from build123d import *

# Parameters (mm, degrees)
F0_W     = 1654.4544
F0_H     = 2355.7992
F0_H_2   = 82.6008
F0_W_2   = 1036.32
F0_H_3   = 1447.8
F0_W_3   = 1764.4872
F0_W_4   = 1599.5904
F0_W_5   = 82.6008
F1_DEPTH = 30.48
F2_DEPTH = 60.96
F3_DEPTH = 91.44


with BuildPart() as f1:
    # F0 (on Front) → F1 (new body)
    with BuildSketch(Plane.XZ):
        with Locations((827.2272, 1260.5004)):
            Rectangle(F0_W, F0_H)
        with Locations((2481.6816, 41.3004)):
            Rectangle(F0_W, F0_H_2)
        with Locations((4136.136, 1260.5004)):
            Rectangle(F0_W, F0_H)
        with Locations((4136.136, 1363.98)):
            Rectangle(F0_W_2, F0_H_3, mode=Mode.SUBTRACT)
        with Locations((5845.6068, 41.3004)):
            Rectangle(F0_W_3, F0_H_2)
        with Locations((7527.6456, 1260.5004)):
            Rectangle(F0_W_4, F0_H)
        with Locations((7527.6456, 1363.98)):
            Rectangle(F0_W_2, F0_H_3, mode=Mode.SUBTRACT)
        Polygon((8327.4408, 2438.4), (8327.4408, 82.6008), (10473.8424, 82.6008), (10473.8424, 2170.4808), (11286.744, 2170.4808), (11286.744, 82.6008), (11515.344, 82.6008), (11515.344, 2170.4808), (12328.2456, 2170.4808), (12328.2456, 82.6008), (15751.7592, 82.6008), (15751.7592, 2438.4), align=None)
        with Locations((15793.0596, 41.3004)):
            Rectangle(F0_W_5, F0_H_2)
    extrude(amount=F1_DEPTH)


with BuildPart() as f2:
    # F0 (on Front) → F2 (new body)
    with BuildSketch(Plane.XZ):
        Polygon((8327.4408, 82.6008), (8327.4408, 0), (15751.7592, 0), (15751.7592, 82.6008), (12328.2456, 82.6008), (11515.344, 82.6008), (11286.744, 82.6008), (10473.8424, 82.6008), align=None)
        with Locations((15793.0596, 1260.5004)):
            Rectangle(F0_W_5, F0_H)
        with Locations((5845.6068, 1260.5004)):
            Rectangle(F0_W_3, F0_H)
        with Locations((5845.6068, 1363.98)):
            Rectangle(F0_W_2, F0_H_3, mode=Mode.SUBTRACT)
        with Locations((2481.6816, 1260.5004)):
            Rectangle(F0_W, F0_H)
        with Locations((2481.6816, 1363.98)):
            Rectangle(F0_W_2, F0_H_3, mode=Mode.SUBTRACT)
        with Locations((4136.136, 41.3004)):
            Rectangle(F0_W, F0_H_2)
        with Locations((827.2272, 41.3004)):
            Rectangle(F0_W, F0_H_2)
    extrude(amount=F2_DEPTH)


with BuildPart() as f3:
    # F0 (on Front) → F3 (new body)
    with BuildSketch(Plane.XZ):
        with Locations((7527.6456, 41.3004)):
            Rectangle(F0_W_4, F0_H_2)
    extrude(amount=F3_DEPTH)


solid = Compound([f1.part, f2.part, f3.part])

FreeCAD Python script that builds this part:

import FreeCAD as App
import Part
import Sketcher

V = App.Vector
Q = App.Units.Quantity

doc = App.newDocument("Part")
body = doc.addObject("PartDesign::Body", "Body")
body.AllowCompound = True

sketch1 = body.newObject("Sketcher::SketchObject", "Sketch")
sketch1.AttachmentSupport = (doc.getObject("XZ_Plane"), [""])
sketch1.MapMode = "FlatFace"
sketch1.addGeometry(Part.LineSegment(V(0, 2438, 0), V(0, 83, 0)), False)
sketch1.addGeometry(Part.LineSegment(V(0, 83, 0), V(1654, 83, 0)), False)
sketch1.addGeometry(Part.LineSegment(V(1654, 83, 0), V(1654, 2438, 0)), False)
sketch1.addGeometry(Part.LineSegment(V(1654, 2438, 0), V(0, 2438, 0)), False)
sketch1.addGeometry(Part.LineSegment(V(1654, 83, 0), V(1654, 0, 0)), False)
sketch1.addGeometry(Part.LineSegment(V(1654, 0, 0), V(3309, 0, 0)), False)
sketch1.addGeometry(Part.LineSegment(V(3309, 0, 0), V(3309, 83, 0)), False)
sketch1.addGeometry(Part.LineSegment(V(3309, 83, 0), V(1654, 83, 0)), False)
sketch1.addGeometry(Part.LineSegment(V(3309, 2438, 0), V(3309, 83, 0)), False)
sketch1.addGeometry(Part.LineSegment(V(3309, 83, 0), V(4963, 83, 0)), False)
sketch1.addGeometry(Part.LineSegment(V(4963, 83, 0), V(4963, 2438, 0)), False)
sketch1.addGeometry(Part.LineSegment(V(4963, 2438, 0), V(3309, 2438, 0)), False)
sketch1.addGeometry(Part.LineSegment(V(4654, 640, 0), V(3618, 640, 0)), False)
sketch1.addGeometry(Part.LineSegment(V(3618, 640, 0), V(3618, 2088, 0)), False)
sketch1.addGeometry(Part.LineSegment(V(3618, 2088, 0), V(4654, 2088, 0)), False)
sketch1.addGeometry(Part.LineSegment(V(4654, 2088, 0), V(4654, 640, 0)), False)
sketch1.addGeometry(Part.LineSegment(V(4963, 83, 0), V(4963, 0, 0)), False)
sketch1.addGeometry(Part.LineSegment(V(4963, 0, 0), V(6728, 0, 0)), False)
sketch1.addGeometry(Part.LineSegment(V(6728, 0, 0), V(6728, 83, 0)), False)
sketch1.addGeometry(Part.LineSegment(V(6728, 83, 0), V(4963, 83, 0)), False)
sketch1.addGeometry(Part.LineSegment(V(6728, 2438, 0), V(6728, 83, 0)), False)
sketch1.addGeometry(Part.LineSegment(V(6728, 83, 0), V(10474, 83, 0)), False)
sketch1.addGeometry(Part.LineSegment(V(10474, 83, 0), V(10474, 2170, 0)), False)
sketch1.addGeometry(Part.LineSegment(V(10474, 2170, 0), V(11287, 2170, 0)), False)
sketch1.addGeometry(Part.LineSegment(V(11287, 2170, 0), V(11287, 83, 0)), False)
sketch1.addGeometry(Part.LineSegment(V(11287, 83, 0), V(11515, 83, 0)), False)
sketch1.addGeometry(Part.LineSegment(V(11515, 83, 0), V(11515, 2170, 0)), False)
sketch1.addGeometry(Part.LineSegment(V(11515, 2170, 0), V(12328, 2170, 0)), False)
sketch1.addGeometry(Part.LineSegment(V(12328, 2170, 0), V(12328, 83, 0)), False)
sketch1.addGeometry(Part.LineSegment(V(12328, 83, 0), V(15752, 83, 0)), False)
sketch1.addGeometry(Part.LineSegment(V(15752, 83, 0), V(15752, 2438, 0)), False)
sketch1.addGeometry(Part.LineSegment(V(15752, 2438, 0), V(6728, 2438, 0)), False)
sketch1.addGeometry(Part.LineSegment(V(8046, 640, 0), V(7009, 640, 0)), False)
sketch1.addGeometry(Part.LineSegment(V(7009, 640, 0), V(7009, 2088, 0)), False)
sketch1.addGeometry(Part.LineSegment(V(7009, 2088, 0), V(8046, 2088, 0)), False)
sketch1.addGeometry(Part.LineSegment(V(8046, 2088, 0), V(8046, 640, 0)), False)
sketch1.addGeometry(Part.LineSegment(V(15752, 83, 0), V(15752, 0, 0)), False)
sketch1.addGeometry(Part.LineSegment(V(15752, 0, 0), V(15834, 0, 0)), False)
sketch1.addGeometry(Part.LineSegment(V(15834, 0, 0), V(15834, 83, 0)), False)
sketch1.addGeometry(Part.LineSegment(V(15834, 83, 0), V(15752, 83, 0)), False)
sketch1.addConstraint(Sketcher.Constraint("Coincident", 0, 2, 1, 1))
sketch1.addConstraint(Sketcher.Constraint("Coincident", 1, 2, 2, 1))
sketch1.addConstraint(Sketcher.Constraint("Coincident", 2, 2, 3, 1))
sketch1.addConstraint(Sketcher.Constraint("Coincident", 3, 2, 0, 1))
sketch1.addConstraint(Sketcher.Constraint("Coincident", 4, 2, 5, 1))
sketch1.addConstraint(Sketcher.Constraint("Coincident", 5, 2, 6, 1))
sketch1.addConstraint(Sketcher.Constraint("Coincident", 6, 2, 7, 1))
sketch1.addConstraint(Sketcher.Constraint("Coincident", 7, 2, 4, 1))
sketch1.addConstraint(Sketcher.Constraint("Coincident", 8, 2, 9, 1))
sketch1.addConstraint(Sketcher.Constraint("Coincident", 9, 2, 10, 1))
sketch1.addConstraint(Sketcher.Constraint("Coincident", 10, 2, 11, 1))
sketch1.addConstraint(Sketcher.Constraint("Coincident", 11, 2, 8, 1))
sketch1.addConstraint(Sketcher.Constraint("Coincident", 12, 2, 13, 1))
sketch1.addConstraint(Sketcher.Constraint("Coincident", 13, 2, 14, 1))
sketch1.addConstraint(Sketcher.Constraint("Coincident", 14, 2, 15, 1))
sketch1.addConstraint(Sketcher.Constraint("Coincident", 15, 2, 12, 1))
sketch1.addConstraint(Sketcher.Constraint("Coincident", 16, 2, 17, 1))
sketch1.addConstraint(Sketcher.Constraint("Coincident", 17, 2, 18, 1))
sketch1.addConstraint(Sketcher.Constraint("Coincident", 18, 2, 19, 1))
sketch1.addConstraint(Sketcher.Constraint("Coincident", 19, 2, 16, 1))
sketch1.addConstraint(Sketcher.Constraint("Coincident", 20, 2, 21, 1))
sketch1.addConstraint(Sketcher.Constraint("Coincident", 21, 2, 22, 1))
sketch1.addConstraint(Sketcher.Constraint("Coincident", 22, 2, 23, 1))
sketch1.addConstraint(Sketcher.Constraint("Coincident", 23, 2, 24, 1))
sketch1.addConstraint(Sketcher.Constraint("Coincident", 24, 2, 25, 1))
sketch1.addConstraint(Sketcher.Constraint("Coincident", 25, 2, 26, 1))
sketch1.addConstraint(Sketcher.Constraint("Coincident", 26, 2, 27, 1))
sketch1.addConstraint(Sketcher.Constraint("Coincident", 27, 2, 28, 1))
sketch1.addConstraint(Sketcher.Constraint("Coincident", 28, 2, 29, 1))
sketch1.addConstraint(Sketcher.Constraint("Coincident", 29, 2, 30, 1))
sketch1.addConstraint(Sketcher.Constraint("Coincident", 30, 2, 31, 1))
sketch1.addConstraint(Sketcher.Constraint("Coincident", 31, 2, 20, 1))
sketch1.addConstraint(Sketcher.Constraint("Coincident", 32, 2, 33, 1))
sketch1.addConstraint(Sketcher.Constraint("Coincident", 33, 2, 34, 1))
sketch1.addConstraint(Sketcher.Constraint("Coincident", 34, 2, 35, 1))
sketch1.addConstraint(Sketcher.Constraint("Coincident", 35, 2, 32, 1))
sketch1.addConstraint(Sketcher.Constraint("Coincident", 36, 2, 37, 1))
sketch1.addConstraint(Sketcher.Constraint("Coincident", 37, 2, 38, 1))
sketch1.addConstraint(Sketcher.Constraint("Coincident", 38, 2, 39, 1))
sketch1.addConstraint(Sketcher.Constraint("Coincident", 39, 2, 36, 1))
sketch1.addConstraint(Sketcher.Constraint("Vertical", 0))
sketch1.addConstraint(Sketcher.Constraint("Horizontal", 1))
sketch1.addConstraint(Sketcher.Constraint("Vertical", 2))
sketch1.addConstraint(Sketcher.Constraint("Horizontal", 3))
sketch1.addConstraint(Sketcher.Constraint("Vertical", 4))
sketch1.addConstraint(Sketcher.Constraint("Horizontal", 5))
sketch1.addConstraint(Sketcher.Constraint("Vertical", 6))
sketch1.addConstraint(Sketcher.Constraint("Horizontal", 7))
sketch1.addConstraint(Sketcher.Constraint("Vertical", 8))
sketch1.addConstraint(Sketcher.Constraint("Horizontal", 9))
sketch1.addConstraint(Sketcher.Constraint("Vertical", 10))
sketch1.addConstraint(Sketcher.Constraint("Horizontal", 11))
sketch1.addConstraint(Sketcher.Constraint("Horizontal", 12))
sketch1.addConstraint(Sketcher.Constraint("Vertical", 13))
sketch1.addConstraint(Sketcher.Constraint("Horizontal", 14))
sketch1.addConstraint(Sketcher.Constraint("Vertical", 15))
sketch1.addConstraint(Sketcher.Constraint("Vertical", 16))
sketch1.addConstraint(Sketcher.Constraint("Horizontal", 17))
sketch1.addConstraint(Sketcher.Constraint("Vertical", 18))
sketch1.addConstraint(Sketcher.Constraint("Horizontal", 19))
sketch1.addConstraint(Sketcher.Constraint("Vertical", 20))
sketch1.addConstraint(Sketcher.Constraint("Horizontal", 21))
sketch1.addConstraint(Sketcher.Constraint("Vertical", 22))
sketch1.addConstraint(Sketcher.Constraint("Horizontal", 23))
sketch1.addConstraint(Sketcher.Constraint("Vertical", 24))
sketch1.addConstraint(Sketcher.Constraint("Horizontal", 25))
sketch1.addConstraint(Sketcher.Constraint("Vertical", 26))
sketch1.addConstraint(Sketcher.Constraint("Horizontal", 27))
sketch1.addConstraint(Sketcher.Constraint("Vertical", 28))
sketch1.addConstraint(Sketcher.Constraint("Horizontal", 29))
sketch1.addConstraint(Sketcher.Constraint("Vertical", 30))
sketch1.addConstraint(Sketcher.Constraint("Horizontal", 31))
sketch1.addConstraint(Sketcher.Constraint("Horizontal", 32))
sketch1.addConstraint(Sketcher.Constraint("Vertical", 33))
sketch1.addConstraint(Sketcher.Constraint("Horizontal", 34))
sketch1.addConstraint(Sketcher.Constraint("Vertical", 35))
sketch1.addConstraint(Sketcher.Constraint("Vertical", 36))
sketch1.addConstraint(Sketcher.Constraint("Horizontal", 37))
sketch1.addConstraint(Sketcher.Constraint("Vertical", 38))
sketch1.addConstraint(Sketcher.Constraint("Horizontal", 39))
sketch1.addConstraint(Sketcher.Constraint("Coincident", 7, 2, 1, 2))
sketch1.addConstraint(Sketcher.Constraint("Coincident", 8, 2, 6, 2))
sketch1.addConstraint(Sketcher.Constraint("Coincident", 19, 2, 9, 2))
sketch1.addConstraint(Sketcher.Constraint("Coincident", 20, 2, 18, 2))
sketch1.addConstraint(Sketcher.Constraint("Coincident", 39, 2, 29, 2))
sketch1.addConstraint(Sketcher.Constraint("PointOnObject", 0, 2, -2))
sketch1.addConstraint(Sketcher.Constraint("PointOnObject", 4, 2, -1))
sketch1.addConstraint(Sketcher.Constraint("PointOnObject", 16, 2, -1))
sketch1.addConstraint(Sketcher.Constraint("PointOnObject", 36, 2, -1))
sketch1.addConstraint(Sketcher.Constraint("Horizontal", 3, 2, 10, 2))
sketch1.addConstraint(Sketcher.Constraint("Horizontal", 21, 2, 24, 2))
sketch1.addConstraint(Sketcher.Constraint("Horizontal", 23, 2, 26, 2))
sketch1.addConstraint(Sketcher.Constraint("Horizontal", 25, 2, 28, 2))
sketch1.addConstraint(Sketcher.Constraint("Horizontal", 11, 2, 30, 2))
sketch1.addConstraint(Sketcher.Constraint("Horizontal", 15, 2, 32, 2))
sketch1.addConstraint(Sketcher.Constraint("Horizontal", 14, 2, 33, 2))
sketch1.addConstraint(Sketcher.Constraint("Equal", 3, 5))
sketch1.addConstraint(Sketcher.Constraint("Equal", 7, 9))
sketch1.addConstraint(Sketcher.Constraint("Equal", 23, 27))
sketch1.addConstraint(Sketcher.Constraint("Equal", 14, 32))
sketch1.addConstraint(Sketcher.Constraint("Equal", 39, 4))
sketch1.addConstraint(Sketcher.Constraint("DistanceX", 25, 1, 25, 2, Q("9 in")))
sketch1.addConstraint(Sketcher.Constraint("DistanceY", 13, 1, 13, 2, Q("57 in")))
sketch1.addConstraint(Sketcher.Constraint("DistanceX", 12, 2, 12, 1, Q("40.8 in")))
sketch1.addConstraint(Sketcher.Constraint("DistanceY", 22, 1, 22, 2, Q("82.2 in")))
sketch1.addConstraint(Sketcher.Constraint("DistanceY", -1, 1, 2, 2, Q("96 in")))
sketch1.addConstraint(Sketcher.Constraint("DistanceX", 21, 1, 21, 2, Q("147.48 in")))
sketch1.addConstraint(Sketcher.Constraint("DistanceY", -1, 1, 12, 2, Q("25.2 in")))
sketch1.addConstraint(Sketcher.Constraint("DistanceX", -1, 1, 37, 2, Q("623.4 in")))
sketch1.addConstraint(Sketcher.Constraint("DistanceX", 1, 1, 1, 2, Q("65.136 in")))
sketch1.addConstraint(Sketcher.Constraint("DistanceX", 17, 1, 17, 2, Q("69.468 in")))
sketch1.addConstraint(Sketcher.Constraint("DistanceX", 23, 1, 23, 2, Q("32.004 in")))
sketch1.addConstraint(Sketcher.Constraint("DistanceX", 29, 1, 29, 2, Q("134.784 in")))
sketch1.addConstraint(Sketcher.Constraint("DistanceX", -1, 1, 12, 2, Q("142.44 in")))
sketch1.addConstraint(Sketcher.Constraint("DistanceX", -1, 1, 32, 2, Q("275.964 in")))
pad1 = body.newObject("PartDesign::Pad", "Pad")
pad1.Profile = sketch1
pad1.Length = Q("1.2 in")
body2 = doc.addObject("PartDesign::Body", "Body001")
body2.AllowCompound = True

sketch2 = body2.newObject("Sketcher::SketchObject", "Sketch001")
sketch2.AttachmentSupport = (doc.getObject("XZ_Plane001"), [""])
sketch2.MapMode = "FlatFace"
sketch2.addGeometry(Part.LineSegment(V(8327, 83, 0), V(8327, 0, 0)), False)
sketch2.addGeometry(Part.LineSegment(V(8327, 0, 0), V(15752, 0, 0)), False)
sketch2.addGeometry(Part.LineSegment(V(15752, 0, 0), V(15752, 83, 0)), False)
sketch2.addGeometry(Part.LineSegment(V(15752, 83, 0), V(8327, 83, 0)), False)
sketch2.addGeometry(Part.LineSegment(V(15752, 2438, 0), V(15752, 83, 0)), False)
sketch2.addGeometry(Part.LineSegment(V(15752, 83, 0), V(15834, 83, 0)), False)
sketch2.addGeometry(Part.LineSegment(V(15834, 83, 0), V(15834, 2438, 0)), False)
sketch2.addGeometry(Part.LineSegment(V(15834, 2438, 0), V(15752, 2438, 0)), False)
sketch2.addGeometry(Part.LineSegment(V(4963, 2438, 0), V(4963, 83, 0)), False)
sketch2.addGeometry(Part.LineSegment(V(4963, 83, 0), V(6728, 83, 0)), False)
sketch2.addGeometry(Part.LineSegment(V(6728, 83, 0), V(6728, 2438, 0)), False)
sketch2.addGeometry(Part.LineSegment(V(6728, 2438, 0), V(4963, 2438, 0)), False)
sketch2.addGeometry(Part.LineSegment(V(6364, 640, 0), V(5327, 640, 0)), False)
sketch2.addGeometry(Part.LineSegment(V(5327, 640, 0), V(5327, 2088, 0)), False)
sketch2.addGeometry(Part.LineSegment(V(5327, 2088, 0), V(6364, 2088, 0)), False)
sketch2.addGeometry(Part.LineSegment(V(6364, 2088, 0), V(6364, 640, 0)), False)
sketch2.addGeometry(Part.LineSegment(V(1654, 2438, 0), V(1654, 83, 0)), False)
sketch2.addGeometry(Part.LineSegment(V(1654, 83, 0), V(3309, 83, 0)), False)
sketch2.addGeometry(Part.LineSegment(V(3309, 83, 0), V(3309, 2438, 0)), False)
sketch2.addGeometry(Part.LineSegment(V(3309, 2438, 0), V(1654, 2438, 0)), False)
sketch2.addGeometry(Part.LineSegment(V(3000, 640, 0), V(1964, 640, 0)), False)
sketch2.addGeometry(Part.LineSegment(V(1964, 640, 0), V(1964, 2088, 0)), False)
sketch2.addGeometry(Part.LineSegment(V(1964, 2088, 0), V(3000, 2088, 0)), False)
sketch2.addGeometry(Part.LineSegment(V(3000, 2088, 0), V(3000, 640, 0)), False)
sketch2.addGeometry(Part.LineSegment(V(3309, 83, 0), V(3309, 0, 0)), False)
sketch2.addGeometry(Part.LineSegment(V(3309, 0, 0), V(4963, 0, 0)), False)
sketch2.addGeometry(Part.LineSegment(V(4963, 0, 0), V(4963, 83, 0)), False)
sketch2.addGeometry(Part.LineSegment(V(4963, 83, 0), V(3309, 83, 0)), False)
sketch2.addGeometry(Part.LineSegment(V(0, 83, 0), V(0, 0, 0)), False)
sketch2.addGeometry(Part.LineSegment(V(0, 0, 0), V(1654, 0, 0)), False)
sketch2.addGeometry(Part.LineSegment(V(1654, 0, 0), V(1654, 83, 0)), False)
sketch2.addGeometry(Part.LineSegment(V(1654, 83, 0), V(0, 83, 0)), False)
sketch2.addConstraint(Sketcher.Constraint("Coincident", 0, 2, 1, 1))
sketch2.addConstraint(Sketcher.Constraint("Coincident", 1, 2, 2, 1))
sketch2.addConstraint(Sketcher.Constraint("Coincident", 2, 2, 3, 1))
sketch2.addConstraint(Sketcher.Constraint("Coincident", 3, 2, 0, 1))
sketch2.addConstraint(Sketcher.Constraint("Coincident", 4, 2, 5, 1))
sketch2.addConstraint(Sketcher.Constraint("Coincident", 5, 2, 6, 1))
sketch2.addConstraint(Sketcher.Constraint("Coincident", 6, 2, 7, 1))
sketch2.addConstraint(Sketcher.Constraint("Coincident", 7, 2, 4, 1))
sketch2.addConstraint(Sketcher.Constraint("Coincident", 8, 2, 9, 1))
sketch2.addConstraint(Sketcher.Constraint("Coincident", 9, 2, 10, 1))
sketch2.addConstraint(Sketcher.Constraint("Coincident", 10, 2, 11, 1))
sketch2.addConstraint(Sketcher.Constraint("Coincident", 11, 2, 8, 1))
sketch2.addConstraint(Sketcher.Constraint("Coincident", 12, 2, 13, 1))
sketch2.addConstraint(Sketcher.Constraint("Coincident", 13, 2, 14, 1))
sketch2.addConstraint(Sketcher.Constraint("Coincident", 14, 2, 15, 1))
sketch2.addConstraint(Sketcher.Constraint("Coincident", 15, 2, 12, 1))
sketch2.addConstraint(Sketcher.Constraint("Coincident", 16, 2, 17, 1))
sketch2.addConstraint(Sketcher.Constraint("Coincident", 17, 2, 18, 1))
sketch2.addConstraint(Sketcher.Constraint("Coincident", 18, 2, 19, 1))
sketch2.addConstraint(Sketcher.Constraint("Coincident", 19, 2, 16, 1))
sketch2.addConstraint(Sketcher.Constraint("Coincident", 20, 2, 21, 1))
sketch2.addConstraint(Sketcher.Constraint("Coincident", 21, 2, 22, 1))
sketch2.addConstraint(Sketcher.Constraint("Coincident", 22, 2, 23, 1))
sketch2.addConstraint(Sketcher.Constraint("Coincident", 23, 2, 20, 1))
sketch2.addConstraint(Sketcher.Constraint("Coincident", 24, 2, 25, 1))
sketch2.addConstraint(Sketcher.Constraint("Coincident", 25, 2, 26, 1))
sketch2.addConstraint(Sketcher.Constraint("Coincident", 26, 2, 27, 1))
sketch2.addConstraint(Sketcher.Constraint("Coincident", 27, 2, 24, 1))
sketch2.addConstraint(Sketcher.Constraint("Coincident", 28, 2, 29, 1))
sketch2.addConstraint(Sketcher.Constraint("Coincident", 29, 2, 30, 1))
sketch2.addConstraint(Sketcher.Constraint("Coincident", 30, 2, 31, 1))
sketch2.addConstraint(Sketcher.Constraint("Coincident", 31, 2, 28, 1))
sketch2.addConstraint(Sketcher.Constraint("Vertical", 0))
sketch2.addConstraint(Sketcher.Constraint("Horizontal", 1))
sketch2.addConstraint(Sketcher.Constraint("Vertical", 2))
sketch2.addConstraint(Sketcher.Constraint("Horizontal", 3))
sketch2.addConstraint(Sketcher.Constraint("Vertical", 4))
sketch2.addConstraint(Sketcher.Constraint("Horizontal", 5))
sketch2.addConstraint(Sketcher.Constraint("Vertical", 6))
sketch2.addConstraint(Sketcher.Constraint("Horizontal", 7))
sketch2.addConstraint(Sketcher.Constraint("Vertical", 8))
sketch2.addConstraint(Sketcher.Constraint("Horizontal", 9))
sketch2.addConstraint(Sketcher.Constraint("Vertical", 10))
sketch2.addConstraint(Sketcher.Constraint("Horizontal", 11))
sketch2.addConstraint(Sketcher.Constraint("Horizontal", 12))
sketch2.addConstraint(Sketcher.Constraint("Vertical", 13))
sketch2.addConstraint(Sketcher.Constraint("Horizontal", 14))
sketch2.addConstraint(Sketcher.Constraint("Vertical", 15))
sketch2.addConstraint(Sketcher.Constraint("Vertical", 16))
sketch2.addConstraint(Sketcher.Constraint("Horizontal", 17))
sketch2.addConstraint(Sketcher.Constraint("Vertical", 18))
sketch2.addConstraint(Sketcher.Constraint("Horizontal", 19))
sketch2.addConstraint(Sketcher.Constraint("Horizontal", 20))
sketch2.addConstraint(Sketcher.Constraint("Vertical", 21))
sketch2.addConstraint(Sketcher.Constraint("Horizontal", 22))
sketch2.addConstraint(Sketcher.Constraint("Vertical", 23))
sketch2.addConstraint(Sketcher.Constraint("Vertical", 24))
sketch2.addConstraint(Sketcher.Constraint("Horizontal", 25))
sketch2.addConstraint(Sketcher.Constraint("Vertical", 26))
sketch2.addConstraint(Sketcher.Constraint("Horizontal", 27))
sketch2.addConstraint(Sketcher.Constraint("Vertical", 28))
sketch2.addConstraint(Sketcher.Constraint("Horizontal", 29))
sketch2.addConstraint(Sketcher.Constraint("Vertical", 30))
sketch2.addConstraint(Sketcher.Constraint("Horizontal", 31))
sketch2.addConstraint(Sketcher.Constraint("Coincident", 28, 2, -1, 1))
sketch2.addConstraint(Sketcher.Constraint("Coincident", 4, 2, 2, 2))
sketch2.addConstraint(Sketcher.Constraint("Coincident", 26, 2, 8, 2))
sketch2.addConstraint(Sketcher.Constraint("Coincident", 27, 2, 17, 2))
sketch2.addConstraint(Sketcher.Constraint("Coincident", 30, 2, 16, 2))
sketch2.addConstraint(Sketcher.Constraint("PointOnObject", 0, 2, -1))
sketch2.addConstraint(Sketcher.Constraint("PointOnObject", 24, 2, -1))
sketch2.addConstraint(Sketcher.Constraint("Horizontal", 5, 2, 8, 2))
sketch2.addConstraint(Sketcher.Constraint("Horizontal", 7, 2, 10, 2))
sketch2.addConstraint(Sketcher.Constraint("Horizontal", 11, 2, 18, 2))
sketch2.addConstraint(Sketcher.Constraint("Horizontal", 15, 2, 20, 2))
sketch2.addConstraint(Sketcher.Constraint("Horizontal", 14, 2, 21, 2))
sketch2.addConstraint(Sketcher.Constraint("Equal", 14, 20))
sketch2.addConstraint(Sketcher.Constraint("Equal", 19, 25))
sketch2.addConstraint(Sketcher.Constraint("Equal", 27, 29))
sketch2.addConstraint(Sketcher.Constraint("Equal", 7, 0))
sketch2.addConstraint(Sketcher.Constraint("DistanceY", 13, 1, 13, 2, Q("57 in")))
sketch2.addConstraint(Sketcher.Constraint("DistanceX", 12, 2, 12, 1, Q("40.8 in")))
sketch2.addConstraint(Sketcher.Constraint("DistanceY", -1, 1, 6, 2, Q("96 in")))
sketch2.addConstraint(Sketcher.Constraint("DistanceX", -1, 1, 5, 2, Q("623.4 in")))
sketch2.addConstraint(Sketcher.Constraint("DistanceY", -1, 1, 12, 2, Q("25.2 in")))
sketch2.addConstraint(Sketcher.Constraint("DistanceX", 1, 1, 1, 2, Q("292.296 in")))
sketch2.addConstraint(Sketcher.Constraint("DistanceX", 5, 1, 5, 2, Q("3.252 in")))
sketch2.addConstraint(Sketcher.Constraint("DistanceX", 9, 1, 9, 2, Q("69.468 in")))
sketch2.addConstraint(Sketcher.Constraint("DistanceX", 17, 1, 17, 2, Q("65.136 in")))
sketch2.addConstraint(Sketcher.Constraint("DistanceX", 12, 2, 3, 2, Q("118.11 in")))
sketch2.addConstraint(Sketcher.Constraint("DistanceX", -1, 1, 20, 2, Q("77.304 in")))
pad2 = body2.newObject("PartDesign::Pad", "Pad001")
pad2.Profile = sketch2
pad2.Length = Q("2.4 in")
body3 = doc.addObject("PartDesign::Body", "Body002")

sketch3 = body3.newObject("Sketcher::SketchObject", "Sketch002")
sketch3.AttachmentSupport = (doc.getObject("XZ_Plane002"), [""])
sketch3.MapMode = "FlatFace"
sketch3.addGeometry(Part.LineSegment(V(6728, 83, 0), V(6728, 0, 0)), False)
sketch3.addGeometry(Part.LineSegment(V(6728, 0, 0), V(8327, 0, 0)), False)
sketch3.addGeometry(Part.LineSegment(V(8327, 0, 0), V(8327, 83, 0)), False)
sketch3.addGeometry(Part.LineSegment(V(8327, 83, 0), V(6728, 83, 0)), False)
sketch3.addConstraint(Sketcher.Constraint("Coincident", 0, 2, 1, 1))
sketch3.addConstraint(Sketcher.Constraint("Coincident", 1, 2, 2, 1))
sketch3.addConstraint(Sketcher.Constraint("Coincident", 2, 2, 3, 1))
sketch3.addConstraint(Sketcher.Constraint("Coincident", 3, 2, 0, 1))
sketch3.addConstraint(Sketcher.Constraint("Vertical", 0))
sketch3.addConstraint(Sketcher.Constraint("Horizontal", 1))
sketch3.addConstraint(Sketcher.Constraint("Vertical", 2))
sketch3.addConstraint(Sketcher.Constraint("Horizontal", 3))
sketch3.addConstraint(Sketcher.Constraint("PointOnObject", 0, 2, -1))
sketch3.addConstraint(Sketcher.Constraint("DistanceX", 1, 1, 1, 2, Q("62.976 in")))
sketch3.addConstraint(Sketcher.Constraint("DistanceY", 0, 2, 0, 1, Q("3.252 in")))
sketch3.addConstraint(Sketcher.Constraint("DistanceX", -1, 1, 0, 2, Q("264.876 in")))
pad3 = body3.newObject("PartDesign::Pad", "Pad002")
pad3.Profile = sketch3
pad3.Length = Q("3.6 in")

doc.recompute()
